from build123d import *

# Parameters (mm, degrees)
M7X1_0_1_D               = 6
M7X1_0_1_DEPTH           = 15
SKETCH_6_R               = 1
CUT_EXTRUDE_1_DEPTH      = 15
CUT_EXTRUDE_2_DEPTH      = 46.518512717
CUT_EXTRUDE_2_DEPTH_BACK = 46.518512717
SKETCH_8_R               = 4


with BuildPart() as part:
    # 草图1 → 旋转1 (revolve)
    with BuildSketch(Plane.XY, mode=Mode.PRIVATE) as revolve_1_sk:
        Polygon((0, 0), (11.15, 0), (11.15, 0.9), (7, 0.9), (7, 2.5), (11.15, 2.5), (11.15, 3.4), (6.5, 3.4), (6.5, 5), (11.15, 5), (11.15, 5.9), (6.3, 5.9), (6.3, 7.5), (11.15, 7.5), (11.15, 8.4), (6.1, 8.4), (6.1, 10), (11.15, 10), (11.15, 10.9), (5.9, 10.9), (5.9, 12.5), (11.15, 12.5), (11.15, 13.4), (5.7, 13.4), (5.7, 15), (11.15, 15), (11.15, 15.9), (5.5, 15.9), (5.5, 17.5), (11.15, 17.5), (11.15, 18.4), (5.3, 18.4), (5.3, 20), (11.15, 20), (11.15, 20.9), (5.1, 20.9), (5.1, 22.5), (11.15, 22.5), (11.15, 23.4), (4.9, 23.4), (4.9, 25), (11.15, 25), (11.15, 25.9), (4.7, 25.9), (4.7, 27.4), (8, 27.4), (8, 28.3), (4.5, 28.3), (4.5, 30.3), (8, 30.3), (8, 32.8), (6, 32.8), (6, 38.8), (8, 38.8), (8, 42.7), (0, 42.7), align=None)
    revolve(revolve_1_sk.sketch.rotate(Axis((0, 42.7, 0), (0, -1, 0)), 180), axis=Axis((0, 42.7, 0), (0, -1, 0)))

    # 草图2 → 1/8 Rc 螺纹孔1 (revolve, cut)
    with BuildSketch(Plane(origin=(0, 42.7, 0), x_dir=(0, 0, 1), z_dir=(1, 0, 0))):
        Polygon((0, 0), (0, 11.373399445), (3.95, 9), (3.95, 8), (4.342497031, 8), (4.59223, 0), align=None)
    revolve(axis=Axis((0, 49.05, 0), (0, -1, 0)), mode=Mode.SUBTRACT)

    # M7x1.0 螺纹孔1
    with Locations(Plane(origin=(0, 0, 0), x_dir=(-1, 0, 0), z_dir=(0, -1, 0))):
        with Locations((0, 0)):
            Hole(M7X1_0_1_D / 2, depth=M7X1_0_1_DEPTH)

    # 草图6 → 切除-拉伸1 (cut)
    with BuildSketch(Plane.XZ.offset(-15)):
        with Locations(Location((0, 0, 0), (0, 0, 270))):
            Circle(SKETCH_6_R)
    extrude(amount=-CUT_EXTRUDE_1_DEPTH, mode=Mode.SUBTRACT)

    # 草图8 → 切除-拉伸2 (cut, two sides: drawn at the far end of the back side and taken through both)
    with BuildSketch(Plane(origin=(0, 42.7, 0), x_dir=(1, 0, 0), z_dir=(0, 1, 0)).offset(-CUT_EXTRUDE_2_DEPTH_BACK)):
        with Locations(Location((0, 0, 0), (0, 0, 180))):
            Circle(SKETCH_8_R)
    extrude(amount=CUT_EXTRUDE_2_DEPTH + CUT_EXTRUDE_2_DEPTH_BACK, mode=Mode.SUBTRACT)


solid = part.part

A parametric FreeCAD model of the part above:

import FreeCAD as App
import Part
import Sketcher
from FreeCAD import Vector
Q = App.Units.Quantity

doc = App.newDocument("Part")
body = doc.addObject("PartDesign::Body", "Body")

# Sketch on XY plane
sketch1 = doc.addObject("Sketcher::SketchObject", "Sketch")
body.addObject(sketch1)
sketch1.AttachmentSupport = (doc.XY_Plane, [""])
sketch1.MapMode = "FlatFace"
sketch1.addGeometry(Part.LineSegment(Vector(0, 0, 0), Vector(11.2, 0, 0)), False)
sketch1.addGeometry(Part.LineSegment(Vector(11.2, 0, 0), Vector(11.2, 0.9, 0)), False)
sketch1.addGeometry(Part.LineSegment(Vector(11.2, 0.9, 0), Vector(7, 0.9, 0)), False)
sketch1.addGeometry(Part.LineSegment(Vector(7, 0.9, 0), Vector(7, 2.5, 0)), False)
sketch1.addGeometry(Part.LineSegment(Vector(7, 2.5, 0), Vector(11.2, 2.5, 0)), False)
sketch1.addGeometry(Part.LineSegment(Vector(11.2, 2.5, 0), Vector(11.2, 3.4, 0)), False)
sketch1.addGeometry(Part.LineSegment(Vector(11.2, 3.4, 0), Vector(6.5, 3.4, 0)), False)
sketch1.addGeometry(Part.LineSegment(Vector(6.5, 3.4, 0), Vector(6.5, 5, 0)), False)
sketch1.addGeometry(Part.LineSegment(Vector(6.5, 5, 0), Vector(11.2, 5, 0)), False)
sketch1.addGeometry(Part.LineSegment(Vector(11.2, 5, 0), Vector(11.2, 5.9, 0)), False)
sketch1.addGeometry(Part.LineSegment(Vector(11.2, 5.9, 0), Vector(6.3, 5.9, 0)), False)
sketch1.addGeometry(Part.LineSegment(Vector(6.3, 5.9, 0), Vector(6.3, 7.5, 0)), False)
sketch1.addGeometry(Part.LineSegment(Vector(6.3, 7.5, 0), Vector(11.2, 7.5, 0)), False)
sketch1.addGeometry(Part.LineSegment(Vector(11.2, 7.5, 0), Vector(11.2, 8.4, 0)), False)
sketch1.addGeometry(Part.LineSegment(Vector(11.2, 8.4, 0), Vector(6.1, 8.4, 0)), False)
sketch1.addGeometry(Part.LineSegment(Vector(6.1, 8.4, 0), Vector(6.1, 10, 0)), False)
sketch1.addGeometry(Part.LineSegment(Vector(6.1, 10, 0), Vector(11.2, 10, 0)), False)
sketch1.addGeometry(Part.LineSegment(Vector(11.2, 10, 0), Vector(11.2, 10.9, 0)), False)
sketch1.addGeometry(Part.LineSegment(Vector(11.2, 10.9, 0), Vector(5.9, 10.9, 0)), False)
sketch1.addGeometry(Part.LineSegment(Vector(5.9, 10.9, 0), Vector(5.9, 12.5, 0)), False)
sketch1.addGeometry(Part.LineSegment(Vector(5.9, 12.5, 0), Vector(11.2, 12.5, 0)), False)
sketch1.addGeometry(Part.LineSegment(Vector(11.2, 12.5, 0), Vector(11.2, 13.4, 0)), False)
sketch1.addGeometry(Part.LineSegment(Vector(11.2, 13.4, 0), Vector(5.7, 13.4, 0)), False)
sketch1.addGeometry(Part.LineSegment(Vector(5.7, 13.4, 0), Vector(5.7, 15, 0)), False)
sketch1.addGeometry(Part.LineSegment(Vector(5.7, 15, 0), Vector(11.2, 15, 0)), False)
sketch1.addGeometry(Part.LineSegment(Vector(11.2, 15, 0), Vector(11.2, 15.9, 0)), False)
sketch1.addGeometry(Part.LineSegment(Vector(11.2, 15.9, 0), Vector(5.5, 15.9, 0)), False)
sketch1.addGeometry(Part.LineSegment(Vector(5.5, 15.9, 0), Vector(5.5, 17.5, 0)), False)
sketch1.addGeometry(Part.LineSegment(Vector(5.5, 17.5, 0), Vector(11.2, 17.5, 0)), False)
sketch1.addGeometry(Part.LineSegment(Vector(11.2, 17.5, 0), Vector(11.2, 18.4, 0)), False)
sketch1.addGeometry(Part.LineSegment(Vector(11.2, 18.4, 0), Vector(5.3, 18.4, 0)), False)
sketch1.addGeometry(Part.LineSegment(Vector(5.3, 18.4, 0), Vector(5.3, 20, 0)), False)
sketch1.addGeometry(Part.LineSegment(Vector(5.3, 20, 0), Vector(11.2, 20, 0)), False)
sketch1.addGeometry(Part.LineSegment(Vector(11.2, 20, 0), Vector(11.2, 20.9, 0)), False)
sketch1.addGeometry(Part.LineSegment(Vector(11.2, 20.9, 0), Vector(5.1, 20.9, 0)), False)
sketch1.addGeometry(Part.LineSegment(Vector(5.1, 20.9, 0), Vector(5.1, 22.5, 0)), False)
sketch1.addGeometry(Part.LineSegment(Vector(5.1, 22.5, 0), Vector(11.2, 22.5, 0)), False)
sketch1.addGeometry(Part.LineSegment(Vector(11.2, 22.5, 0), Vector(11.2, 23.4, 0)), False)
sketch1.addGeometry(Part.LineSegment(Vector(11.2, 23.4, 0), Vector(4.9, 23.4, 0)), False)
sketch1.addGeometry(Part.LineSegment(Vector(4.9, 23.4, 0), Vector(4.9, 25, 0)), False)
sketch1.addGeometry(Part.LineSegment(Vector(4.9, 25, 0), Vector(11.2, 25, 0)), False)
sketch1.addGeometry(Part.LineSegment(Vector(11.2, 25, 0), Vector(11.2, 25.9, 0)), False)
sketch1.addGeometry(Part.LineSegment(Vector(11.2, 25.9, 0), Vector(4.7, 25.9, 0)), False)
sketch1.addGeometry(Part.LineSegment(Vector(4.7, 25.9, 0), Vector(4.7, 27.4, 0)), False)
sketch1.addGeometry(Part.LineSegment(Vector(4.7, 27.4, 0), Vector(8, 27.4, 0)), False)
sketch1.addGeometry(Part.LineSegment(Vector(8, 27.4, 0), Vector(8, 28.3, 0)), False)
sketch1.addGeometry(Part.LineSegment(Vector(8, 28.3, 0), Vector(4.5, 28.3, 0)), False)
sketch1.addGeometry(Part.LineSegment(Vector(4.5, 28.3, 0), Vector(4.5, 30.3, 0)), False)
sketch1.addGeometry(Part.LineSegment(Vector(4.5, 30.3, 0), Vector(8, 30.3, 0)), False)
sketch1.addGeometry(Part.LineSegment(Vector(8, 30.3, 0), Vector(8, 32.8, 0)), False)
sketch1.addGeometry(Part.LineSegment(Vector(8, 32.8, 0), Vector(6, 32.8, 0)), False)
sketch1.addGeometry(Part.LineSegment(Vector(6, 32.8, 0), Vector(6, 38.8, 0)), False)
sketch1.addGeometry(Part.LineSegment(Vector(6, 38.8, 0), Vector(8, 38.8, 0)), False)
sketch1.addGeometry(Part.LineSegment(Vector(8, 38.8, 0), Vector(8, 42.7, 0)), False)
sketch1.addGeometry(Part.LineSegment(Vector(8, 42.7, 0), Vector(0, 42.7, 0)), False)
sketch1.addGeometry(Part.LineSegment(Vector(0, 42.7, 0), Vector(0, 0, 0)), False)
sketch1.addConstraint(Sketcher.Constraint("Coincident", 0, 2, 1, 1))
sketch1.addConstraint(Sketcher.Constraint("Coincident", 1, 2, 2, 1))
sketch1.addConstraint(Sketcher.Constraint("Coincident", 2, 2, 3, 1))
sketch1.addConstraint(Sketcher.Constraint("Coincident", 3, 2, 4, 1))
sketch1.addConstraint(Sketcher.Constraint("Coincident", 4, 2, 5, 1))
sketch1.addConstraint(Sketcher.Constraint("Coincident", 5, 2, 6, 1))
sketch1.addConstraint(Sketcher.Constraint("Coincident", 6, 2, 7, 1))
sketch1.addConstraint(Sketcher.Constraint("Coincident", 7, 2, 8, 1))
sketch1.addConstraint(Sketcher.Constraint("Coincident", 8, 2, 9, 1))
sketch1.addConstraint(Sketcher.Constraint("Coincident", 9, 2, 10, 1))
sketch1.addConstraint(Sketcher.Constraint("Coincident", 10, 2, 11, 1))
sketch1.addConstraint(Sketcher.Constraint("Coincident", 11, 2, 12, 1))
sketch1.addConstraint(Sketcher.Constraint("Coincident", 12, 2, 13, 1))
sketch1.addConstraint(Sketcher.Constraint("Coincident", 13, 2, 14, 1))
sketch1.addConstraint(Sketcher.Constraint("Coincident", 14, 2, 15, 1))
sketch1.addConstraint(Sketcher.Constraint("Coincident", 15, 2, 16, 1))
sketch1.addConstraint(Sketcher.Constraint("Coincident", 16, 2, 17, 1))
sketch1.addConstraint(Sketcher.Constraint("Coincident", 17, 2, 18, 1))
sketch1.addConstraint(Sketcher.Constraint("Coincident", 18, 2, 19, 1))
sketch1.addConstraint(Sketcher.Constraint("Coincident", 19, 2, 20, 1))
sketch1.addConstraint(Sketcher.Constraint("Coincident", 20, 2, 21, 1))
sketch1.addConstraint(Sketcher.Constraint("Coincident", 21, 2, 22, 1))
sketch1.addConstraint(Sketcher.Constraint("Coincident", 22, 2, 23, 1))
sketch1.addConstraint(Sketcher.Constraint("Coincident", 23, 2, 24, 1))
sketch1.addConstraint(Sketcher.Constraint("Coincident", 24, 2, 25, 1))
sketch1.addConstraint(Sketcher.Constraint("Coincident", 25, 2, 26, 1))
sketch1.addConstraint(Sketcher.Constraint("Coincident", 26, 2, 27, 1))
sketch1.addConstraint(Sketcher.Constraint("Coincident", 27, 2, 28, 1))
sketch1.addConstraint(Sketcher.Constraint("Coincident", 28, 2, 29, 1))
sketch1.addConstraint(Sketcher.Constraint("Coincident", 29, 2, 30, 1))
sketch1.addConstraint(Sketcher.Constraint("Coincident", 30, 2, 31, 1))
sketch1.addConstraint(Sketcher.Constraint("Coincident", 31, 2, 32, 1))
sketch1.addConstraint(Sketcher.Constraint("Coincident", 32, 2, 33, 1))
sketch1.addConstraint(Sketcher.Constraint("Coincident", 33, 2, 34, 1))
sketch1.addConstraint(Sketcher.Constraint("Coincident", 34, 2, 35, 1))
sketch1.addConstraint(Sketcher.Constraint("Coincident", 35, 2, 36, 1))
sketch1.addConstraint(Sketcher.Constraint("Coincident", 36, 2, 37, 1))
sketch1.addConstraint(Sketcher.Constraint("Coincident", 37, 2, 38, 1))
sketch1.addConstraint(Sketcher.Constraint("Coincident", 38, 2, 39, 1))
sketch1.addConstraint(Sketcher.Constraint("Coincident", 39, 2, 40, 1))
sketch1.addConstraint(Sketcher.Constraint("Coincident", 40, 2, 41, 1))
sketch1.addConstraint(Sketcher.Constraint("Coincident", 41, 2, 42, 1))
sketch1.addConstraint(Sketcher.Constraint("Coincident", 42, 2, 43, 1))
sketch1.addConstraint(Sketcher.Constraint("Coincident", 43, 2, 44, 1))
sketch1.addConstraint(Sketcher.Constraint("Coincident", 44, 2, 45, 1))
sketch1.addConstraint(Sketcher.Constraint("Coincident", 45, 2, 46, 1))
sketch1.addConstraint(Sketcher.Constraint("Coincident", 46, 2, 47, 1))
sketch1.addConstraint(Sketcher.Constraint("Coincident", 47, 2, 48, 1))
sketch1.addConstraint(Sketcher.Constraint("Coincident", 48, 2, 49, 1))
sketch1.addConstraint(Sketcher.Constraint("Coincident", 49, 2, 50, 1))
sketch1.addConstraint(Sketcher.Constraint("Coincident", 50, 2, 51, 1))
sketch1.addConstraint(Sketcher.Constraint("Coincident", 51, 2, 52, 1))
sketch1.addConstraint(Sketcher.Constraint("Coincident", 52, 2, 53, 1))
sketch1.addConstraint(Sketcher.Constraint("Coincident", 53, 2, 54, 1))
sketch1.addConstraint(Sketcher.Constraint("Coincident", 54, 2, 55, 1))
sketch1.addConstraint(Sketcher.Constraint("Coincident", 55, 2, 0, 1))
sketch1.addConstraint(Sketcher.Constraint("Horizontal", 0))
sketch1.addConstraint(Sketcher.Constraint("Vertical", 1))
sketch1.addConstraint(Sketcher.Constraint("Horizontal", 2))
sketch1.addConstraint(Sketcher.Constraint("Vertical", 3))
sketch1.addConstraint(Sketcher.Constraint("Horizontal", 4))
sketch1.addConstraint(Sketcher.Constraint("Vertical", 5))
sketch1.addConstraint(Sketcher.Constraint("Horizontal", 6))
sketch1.addConstraint(Sketcher.Constraint("Vertical", 7))
sketch1.addConstraint(Sketcher.Constraint("Horizontal", 8))
sketch1.addConstraint(Sketcher.Constraint("Vertical", 9))
sketch1.addConstraint(Sketcher.Constraint("Horizontal", 10))
sketch1.addConstraint(Sketcher.Constraint("Vertical", 11))
sketch1.addConstraint(Sketcher.Constraint("Horizontal", 12))
sketch1.addConstraint(Sketcher.Constraint("Vertical", 13))
sketch1.addConstraint(Sketcher.Constraint("Horizontal", 14))
sketch1.addConstraint(Sketcher.Constraint("Vertical", 15))
sketch1.addConstraint(Sketcher.Constraint("Horizontal", 16))
sketch1.addConstraint(Sketcher.Constraint("Vertical", 17))
sketch1.addConstraint(Sketcher.Constraint("Horizontal", 18))
sketch1.addConstraint(Sketcher.Constraint("Vertical", 19))
sketch1.addConstraint(Sketcher.Constraint("Horizontal", 20))
sketch1.addConstraint(Sketcher.Constraint("Vertical", 21))
sketch1.addConstraint(Sketcher.Constraint("Horizontal", 22))
sketch1.addConstraint(Sketcher.Constraint("Vertical", 23))
sketch1.addConstraint(Sketcher.Constraint("Horizontal", 24))
sketch1.addConstraint(Sketcher.Constraint("Vertical", 25))
sketch1.addConstraint(Sketcher.Constraint("Horizontal", 26))
sketch1.addConstraint(Sketcher.Constraint("Vertical", 27))
sketch1.addConstraint(Sketcher.Constraint("Horizontal", 28))
sketch1.addConstraint(Sketcher.Constraint("Vertical", 29))
sketch1.addConstraint(Sketcher.Constraint("Horizontal", 30))
sketch1.addConstraint(Sketcher.Constraint("Vertical", 31))
sketch1.addConstraint(Sketcher.Constraint("Horizontal", 32))
sketch1.addConstraint(Sketcher.Constraint("Vertical", 33))
sketch1.addConstraint(Sketcher.Constraint("Horizontal", 34))
sketch1.addConstraint(Sketcher.Constraint("Vertical", 35))
sketch1.addConstraint(Sketcher.Constraint("Horizontal", 36))
sketch1.addConstraint(Sketcher.Constraint("Vertical", 37))
sketch1.addConstraint(Sketcher.Constraint("Horizontal", 38))
sketch1.addConstraint(Sketcher.Constraint("Vertical", 39))
sketch1.addConstraint(Sketcher.Constraint("Horizontal", 40))
sketch1.addConstraint(Sketcher.Constraint("Vertical", 41))
sketch1.addConstraint(Sketcher.Constraint("Horizontal", 42))
sketch1.addConstraint(Sketcher.Constraint("Vertical", 43))
sketch1.addConstraint(Sketcher.Constraint("Horizontal", 44))
sketch1.addConstraint(Sketcher.Constraint("Vertical", 45))
sketch1.addConstraint(Sketcher.Constraint("Horizontal", 46))
sketch1.addConstraint(Sketcher.Constraint("Vertical", 47))
sketch1.addConstraint(Sketcher.Constraint("Horizontal", 48))
sketch1.addConstraint(Sketcher.Constraint("Vertical", 49))
sketch1.addConstraint(Sketcher.Constraint("Horizontal", 50))
sketch1.addConstraint(Sketcher.Constraint("Vertical", 51))
sketch1.addConstraint(Sketcher.Constraint("Horizontal", 52))
sketch1.addConstraint(Sketcher.Constraint("Vertical", 53))
sketch1.addConstraint(Sketcher.Constraint("Horizontal", 54))
sketch1.addConstraint(Sketcher.Constraint("Vertical", 55))
sketch1.addConstraint(Sketcher.Constraint("Coincident", 55, 2, -1, 1))
sketch1.addConstraint(Sketcher.Constraint("Vertical", 1, 2, 4, 2))
sketch1.addConstraint(Sketcher.Constraint("Vertical", 5, 2, 8, 2))
sketch1.addConstraint(Sketcher.Constraint("Vertical", 9, 2, 12, 2))
sketch1.addConstraint(Sketcher.Constraint("Vertical", 13, 2, 16, 2))
sketch1.addConstraint(Sketcher.Constraint("Vertical", 17, 2, 20, 2))
sketch1.addConstraint(Sketcher.Constraint("Vertical", 21, 2, 24, 2))
sketch1.addConstraint(Sketcher.Constraint("Vertical", 25, 2, 28, 2))
sketch1.addConstraint(Sketcher.Constraint("Vertical", 29, 2, 32, 2))
sketch1.addConstraint(Sketcher.Constraint("Vertical", 33, 2, 36, 2))
sketch1.addConstraint(Sketcher.Constraint("Vertical", 37, 2, 40, 2))
sketch1.addConstraint(Sketcher.Constraint("Vertical", 45, 2, 48, 2))
sketch1.addConstraint(Sketcher.Constraint("Vertical", 49, 2, 52, 2))
sketch1.addConstraint(Sketcher.Constraint("Equal", 1, 5))
sketch1.addConstraint(Sketcher.Constraint("Equal", 3, 7))
sketch1.addConstraint(Sketcher.Constraint("Equal", 5, 9))
sketch1.addConstraint(Sketcher.Constraint("Equal", 7, 11))
sketch1.addConstraint(Sketcher.Constraint("Equal", 9, 13))
sketch1.addConstraint(Sketcher.Constraint("Equal", 11, 15))
sketch1.addConstraint(Sketcher.Constraint("Equal", 13, 17))
sketch1.addConstraint(Sketcher.Constraint("Equal", 15, 19))
sketch1.addConstraint(Sketcher.Constraint("Equal", 17, 21))
sketch1.addConstraint(Sketcher.Constraint("Equal", 19, 23))
sketch1.addConstraint(Sketcher.Constraint("Equal", 21, 25))
sketch1.addConstraint(Sketcher.Constraint("Equal", 23, 27))
sketch1.addConstraint(Sketcher.Constraint("Equal", 25, 29))
sketch1.addConstraint(Sketcher.Constraint("Equal", 27, 31))
sketch1.addConstraint(Sketcher.Constraint("Equal", 29, 33))
sketch1.addConstraint(Sketcher.Constraint("Equal", 31, 35))
sketch1.addConstraint(Sketcher.Constraint("Equal", 33, 37))
sketch1.addConstraint(Sketcher.Constraint("Equal", 35, 39))
sketch1.addConstraint(Sketcher.Constraint("Equal", 37, 41))
sketch1.addConstraint(Sketcher.Constraint("Equal", 41, 45))
sketch1.addConstraint(Sketcher.Constraint("Equal", 52, 47))
sketch1.addConstraint(Sketcher.Constraint("DistanceX", 50, 2, 50, 1, Q("2 mm")))
sketch1.addConstraint(Sketcher.Constraint("DistanceX", 54, 2, 54, 1, Q("8 mm")))
sketch1.addConstraint(Sketcher.Constraint("DistanceY", 51, 1, 51, 2, Q("6 mm")))
sketch1.addConstraint(Sketcher.Constraint("DistanceX", 44, 1, 44, 2, Q("3.3 mm")))
sketch1.addConstraint(Sketcher.Constraint("DistanceX", 46, 2, 46, 1, Q("3.5 mm")))
sketch1.addConstraint(Sketcher.Constraint("DistanceY", 1, 1, 1, 2, Q("0.9 mm")))
sketch1.addConstraint(Sketcher.Constraint("DistanceY", 3, 1, 3, 2, Q("1.6 mm")))
sketch1.addConstraint(Sketcher.Constraint("DistanceY", 43, 1, 43, 2, Q("1.5 mm")))
sketch1.addConstraint(Sketcher.Constraint("DistanceY", 49, 1, 49, 2, Q("2.5 mm")))
sketch1.addConstraint(Sketcher.Constraint("DistanceY", 53, 1, 53, 2, Q("3.9 mm")))
sketch1.addConstraint(Sketcher.Constraint("DistanceX", -1, 1, 2, 2, Q("7 mm")))
sketch1.addConstraint(Sketcher.Constraint("DistanceX", 0, 1, 0, 2, Q("11.15 mm")))
sketch1.addConstraint(Sketcher.Constraint("DistanceX", 6, 2, 6, 1, Q("4.65 mm")))
sketch1.addConstraint(Sketcher.Constraint("DistanceX", 10, 2, 10, 1, Q("4.85 mm")))
sketch1.addConstraint(Sketcher.Constraint("DistanceX", 14, 2, 14, 1, Q("5.05 mm")))
sketch1.addConstraint(Sketcher.Constraint("DistanceX", 18, 2, 18, 1, Q("5.25 mm")))
sketch1.addConstraint(Sketcher.Constraint("DistanceX", 22, 2, 22, 1, Q("5.45 mm")))
sketch1.addConstraint(Sketcher.Constraint("DistanceX", 26, 2, 26, 1, Q("5.65 mm")))
sketch1.addConstraint(Sketcher.Constraint("DistanceX", 30, 2, 30, 1, Q("5.85 mm")))
sketch1.addConstraint(Sketcher.Constraint("DistanceX", 34, 2, 34, 1, Q("6.05 mm")))
sketch1.addConstraint(Sketcher.Constraint("DistanceX", 38, 2, 38, 1, Q("6.25 mm")))
revolution = doc.addObject("PartDesign::Revolution", "Revolution")
body.addObject(revolution)
revolution.Profile = sketch1
revolution.ReferenceAxis = (sketch1, ["V_Axis"])
revolution.Angle = 360

# Sketch on YZ plane
sketch2 = doc.addObject("Sketcher::SketchObject", "Sketch001")
body.addObject(sketch2)
sketch2.AttachmentSupport = (doc.YZ_Plane, [""])
sketch2.MapMode = "FlatFace"
sketch2.addGeometry(Part.LineSegment(Vector(31.33, 0, 0), Vector(42.7, 0, 0)), False)
sketch2.addGeometry(Part.LineSegment(Vector(42.7, 0, 0), Vector(42.7, 4.59, 0)), False)
sketch2.addGeometry(Part.LineSegment(Vector(42.7, 4.59, 0), Vector(34.7, 4.34, 0)), False)
sketch2.addGeometry(Part.LineSegment(Vector(34.7, 4.34, 0), Vector(34.7, 3.95, 0)), False)
sketch2.addGeometry(Part.LineSegment(Vector(34.7, 3.95, 0), Vector(33.7, 3.95, 0)), False)
sketch2.addGeometry(Part.LineSegment(Vector(33.7, 3.95, 0), Vector(31.33, 0, 0)), False)
sketch2.addConstraint(Sketcher.Constraint("Coincident", 0, 2, 1, 1))
sketch2.addConstraint(Sketcher.Constraint("Coincident", 1, 2, 2, 1))
sketch2.addConstraint(Sketcher.Constraint("Coincident", 2, 2, 3, 1))
sketch2.addConstraint(Sketcher.Constraint("Coincident", 3, 2, 4, 1))
sketch2.addConstraint(Sketcher.Constraint("Coincident", 4, 2, 5, 1))
sketch2.addConstraint(Sketcher.Constraint("Coincident", 5, 2, 0, 1))
sketch2.addConstraint(Sketcher.Constraint("Horizontal", 0))
sketch2.addConstraint(Sketcher.Constraint("Vertical", 1))
sketch2.addConstraint(Sketcher.Constraint("Vertical", 3))
sketch2.addConstraint(Sketcher.Constraint("Horizontal", 4))
sketch2.addConstraint(Sketcher.Constraint("PointOnObject", 0, 2, -1))
sketch2.addConstraint(Sketcher.Constraint("DistanceX", 4, 2, 4, 1, Q("1 mm")))
sketch2.addConstraint(Sketcher.Constraint("Angle", 5, Q("-121 deg")))
sketch2.addConstraint(Sketcher.Constraint("DistanceX", 2, 2, 1, 2, Q("8 mm")))
sketch2.addConstraint(Sketcher.Constraint("DistanceX", -1, 1, 0, 2, Q("42.7 mm")))
sketch2.addConstraint(Sketcher.Constraint("DistanceY", -1, 1, 3, 2, Q("3.95 mm")))
sketch2.addConstraint(Sketcher.Constraint("DistanceY", 1, 1, 1, 2, Q("4.59223 mm")))
sketch2.addConstraint(Sketcher.Constraint("DistanceY", 3, 2, 3, 1, Q("0.392497 mm")))
groove = doc.addObject("PartDesign::Groove", "Groove")
body.addObject(groove)
groove.Profile = sketch2
groove.ReferenceAxis = (sketch2, ["H_Axis"])
groove.Angle = 360

# Sketch on XZ plane
sketch3 = doc.addObject("Sketcher::SketchObject", "Sketch002")
body.addObject(sketch3)
sketch3.AttachmentSupport = (doc.XZ_Plane, [""])
sketch3.MapMode = "FlatFace"
sketch3.addGeometry(Part.Circle(Vector(0, 0, 0), Vector(0, 0, 1), 3), False)
sketch3.addConstraint(Sketcher.Constraint("Coincident", 0, 3, -1, 1))
sketch3.addConstraint(Sketcher.Constraint("Diameter", 0, Q("6 mm")))
doc.recompute()
hole = doc.addObject("PartDesign::Hole", "Hole")
body.addObject(hole)
hole.Profile = sketch3
hole.ThreadType = "None"
hole.Diameter = 6
hole.DepthType = "Dimension"
hole.Depth = 15
hole.DrillPoint = "Flat"

# Sketch on XZ plane
sketch4 = doc.addObject("Sketcher::SketchObject", "Sketch003")
body.addObject(sketch4)
sketch4.AttachmentSupport = (doc.XZ_Plane, [""])
sketch4.MapMode = "FlatFace"
sketch4.AttachmentOffset = App.Placement(Vector(0, 0, -15), App.Rotation())
sketch4.addGeometry(Part.Circle(Vector(0, 0, 0), Vector(0, 0, 1), 1), False)
sketch4.addConstraint(Sketcher.Constraint("Coincident", 0, 3, -1, 1))
sketch4.addConstraint(Sketcher.Constraint("Diameter", 0, Q("2 mm")))
pocket1 = doc.addObject("PartDesign::Pocket", "Pocket")
body.addObject(pocket1)
pocket1.Profile = sketch4
pocket1.Length = 15

# Sketch on XZ plane
sketch5 = doc.addObject("Sketcher::SketchObject", "Sketch004")
body.addObject(sketch5)
sketch5.AttachmentSupport = (doc.XZ_Plane, [""])
sketch5.MapMode = "FlatFace"
sketch5.AttachmentOffset = App.Placement(Vector(0, 0, -42.7), App.Rotation())
sketch5.addGeometry(Part.Circle(Vector(0, 0, 0), Vector(0, 0, 1), 4), False)
sketch5.addConstraint(Sketcher.Constraint("Coincident", 0, 3, -1, 1))
sketch5.addConstraint(Sketcher.Constraint("Diameter", 0, Q("8 mm")))
pocket2 = doc.addObject("PartDesign::Pocket", "Pocket001")
body.addObject(pocket2)
pocket2.Profile = sketch5
pocket2.Type = "ThroughAll"
pocket2.Midplane = True

doc.recompute()
